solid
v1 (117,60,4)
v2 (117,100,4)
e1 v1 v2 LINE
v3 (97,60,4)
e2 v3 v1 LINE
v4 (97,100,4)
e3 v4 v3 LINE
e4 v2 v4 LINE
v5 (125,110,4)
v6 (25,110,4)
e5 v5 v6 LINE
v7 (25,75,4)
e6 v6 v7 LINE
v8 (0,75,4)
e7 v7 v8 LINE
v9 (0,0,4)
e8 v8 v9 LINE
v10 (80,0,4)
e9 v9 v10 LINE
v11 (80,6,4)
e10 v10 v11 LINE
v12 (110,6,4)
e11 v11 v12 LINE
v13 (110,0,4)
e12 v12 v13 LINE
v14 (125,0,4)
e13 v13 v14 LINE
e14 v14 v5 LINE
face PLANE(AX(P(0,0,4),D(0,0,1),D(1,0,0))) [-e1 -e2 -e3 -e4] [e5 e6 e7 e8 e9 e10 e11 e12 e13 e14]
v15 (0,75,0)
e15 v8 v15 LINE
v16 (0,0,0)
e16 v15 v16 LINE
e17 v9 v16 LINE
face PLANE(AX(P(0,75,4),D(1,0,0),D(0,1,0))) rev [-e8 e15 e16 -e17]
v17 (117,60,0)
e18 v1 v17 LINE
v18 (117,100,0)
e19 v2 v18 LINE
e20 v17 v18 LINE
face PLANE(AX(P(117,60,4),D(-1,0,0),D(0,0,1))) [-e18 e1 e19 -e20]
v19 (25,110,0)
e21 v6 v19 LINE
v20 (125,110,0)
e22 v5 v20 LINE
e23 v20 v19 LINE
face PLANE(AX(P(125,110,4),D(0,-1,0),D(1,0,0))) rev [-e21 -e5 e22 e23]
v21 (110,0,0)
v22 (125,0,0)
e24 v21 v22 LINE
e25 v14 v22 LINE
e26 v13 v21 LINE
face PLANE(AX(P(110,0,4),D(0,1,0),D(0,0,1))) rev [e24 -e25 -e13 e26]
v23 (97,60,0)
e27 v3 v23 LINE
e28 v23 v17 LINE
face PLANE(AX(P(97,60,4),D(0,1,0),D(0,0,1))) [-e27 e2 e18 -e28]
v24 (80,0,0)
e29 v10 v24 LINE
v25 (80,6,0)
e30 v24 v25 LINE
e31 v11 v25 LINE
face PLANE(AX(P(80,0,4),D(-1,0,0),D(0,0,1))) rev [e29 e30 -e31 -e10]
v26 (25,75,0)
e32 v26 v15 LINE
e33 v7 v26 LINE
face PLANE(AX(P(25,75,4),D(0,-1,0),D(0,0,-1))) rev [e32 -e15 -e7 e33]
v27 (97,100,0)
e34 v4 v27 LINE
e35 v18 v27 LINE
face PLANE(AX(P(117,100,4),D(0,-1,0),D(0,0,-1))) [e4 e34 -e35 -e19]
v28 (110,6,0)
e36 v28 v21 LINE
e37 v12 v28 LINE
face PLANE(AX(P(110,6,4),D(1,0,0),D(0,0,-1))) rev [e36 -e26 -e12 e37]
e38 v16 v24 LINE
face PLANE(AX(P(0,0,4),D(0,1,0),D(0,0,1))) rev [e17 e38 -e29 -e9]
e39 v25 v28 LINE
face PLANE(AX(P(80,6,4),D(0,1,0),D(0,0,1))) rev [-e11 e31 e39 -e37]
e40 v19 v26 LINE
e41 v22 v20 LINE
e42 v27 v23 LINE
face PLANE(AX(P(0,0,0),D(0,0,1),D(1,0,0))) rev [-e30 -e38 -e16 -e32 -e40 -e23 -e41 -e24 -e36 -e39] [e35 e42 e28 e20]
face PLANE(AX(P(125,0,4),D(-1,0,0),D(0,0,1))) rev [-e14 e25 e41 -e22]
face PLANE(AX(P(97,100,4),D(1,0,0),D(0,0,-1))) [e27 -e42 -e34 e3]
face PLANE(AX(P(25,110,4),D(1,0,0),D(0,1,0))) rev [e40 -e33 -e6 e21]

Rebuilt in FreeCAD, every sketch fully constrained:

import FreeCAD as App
import Part
import Sketcher

V = App.Vector
Q = App.Units.Quantity


def add_polygon(sketch, points):
    """Adds a closed chain of lines whose ends are joined by coincident constraints."""
    first, n = sketch.GeometryCount, len(points)
    for a, b in zip(points, points[1:] + points[:1]):
        sketch.addGeometry(Part.LineSegment(App.Vector(*a, 0), App.Vector(*b, 0)), False)
    for i in range(n):
        sketch.addConstraint(Sketcher.Constraint("Coincident", first + i, 2, first + (i + 1) % n, 1))

doc = App.newDocument("Part")
body = doc.addObject("PartDesign::Body", "Body")

# Sketch on XY plane
sketch1 = body.newObject("Sketcher::SketchObject", "Sketch")
sketch1.AttachmentSupport = (doc.getObject("XY_Plane"), [""])
sketch1.MapMode = "FlatFace"
add_polygon(sketch1, [(0, 0), (80, 0), (80, 6), (110, 6), (110, 0), (125, 0), (125, 110), (25, 110), (25, 75), (0, 75)])  # lines 0-9
add_polygon(sketch1, [(117, 60), (97, 60), (97, 100), (117, 100)])  # lines 10-13
sketch1.addConstraint(Sketcher.Constraint("Horizontal", 0))
sketch1.addConstraint(Sketcher.Constraint("Vertical", 1))
sketch1.addConstraint(Sketcher.Constraint("Horizontal", 2))
sketch1.addConstraint(Sketcher.Constraint("Vertical", 3))
sketch1.addConstraint(Sketcher.Constraint("Horizontal", 4))
sketch1.addConstraint(Sketcher.Constraint("Vertical", 5))
sketch1.addConstraint(Sketcher.Constraint("Horizontal", 6))
sketch1.addConstraint(Sketcher.Constraint("Vertical", 7))
sketch1.addConstraint(Sketcher.Constraint("Horizontal", 8))
sketch1.addConstraint(Sketcher.Constraint("Vertical", 9))
sketch1.addConstraint(Sketcher.Constraint("Horizontal", 10))
sketch1.addConstraint(Sketcher.Constraint("Vertical", 11))
sketch1.addConstraint(Sketcher.Constraint("Horizontal", 12))
sketch1.addConstraint(Sketcher.Constraint("Vertical", 13))
sketch1.addConstraint(Sketcher.Constraint("Coincident", 9, 2, -1, 1))
sketch1.addConstraint(Sketcher.Constraint("PointOnObject", 3, 2, -1))
sketch1.addConstraint(Sketcher.Constraint("DistanceX", 0, 1, 0, 2, Q("80 mm")))
sketch1.addConstraint(Sketcher.Constraint("DistanceX", 2, 1, 2, 2, Q("30 mm")))
sketch1.addConstraint(Sketcher.Constraint("DistanceX", 4, 1, 4, 2, Q("15 mm")))
sketch1.addConstraint(Sketcher.Constraint("DistanceX", 6, 2, 6, 1, Q("100 mm")))
sketch1.addConstraint(Sketcher.Constraint("DistanceX", 10, 2, 10, 1, Q("20 mm")))
sketch1.addConstraint(Sketcher.Constraint("DistanceY", 1, 1, 1, 2, Q("6 mm")))
sketch1.addConstraint(Sketcher.Constraint("DistanceY", 5, 1, 5, 2, Q("110 mm")))
sketch1.addConstraint(Sketcher.Constraint("DistanceY", 7, 2, 7, 1, Q("35 mm")))
sketch1.addConstraint(Sketcher.Constraint("DistanceY", 11, 1, 11, 2, Q("40 mm")))
sketch1.addConstraint(Sketcher.Constraint("DistanceX", -1, 1, 10, 2, Q("97 mm")))
sketch1.addConstraint(Sketcher.Constraint("DistanceY", -1, 1, 10, 2, Q("60 mm")))
pad1 = body.newObject("PartDesign::Pad", "Pad")
pad1.Profile = sketch1
pad1.Length = 4

doc.recompute()
